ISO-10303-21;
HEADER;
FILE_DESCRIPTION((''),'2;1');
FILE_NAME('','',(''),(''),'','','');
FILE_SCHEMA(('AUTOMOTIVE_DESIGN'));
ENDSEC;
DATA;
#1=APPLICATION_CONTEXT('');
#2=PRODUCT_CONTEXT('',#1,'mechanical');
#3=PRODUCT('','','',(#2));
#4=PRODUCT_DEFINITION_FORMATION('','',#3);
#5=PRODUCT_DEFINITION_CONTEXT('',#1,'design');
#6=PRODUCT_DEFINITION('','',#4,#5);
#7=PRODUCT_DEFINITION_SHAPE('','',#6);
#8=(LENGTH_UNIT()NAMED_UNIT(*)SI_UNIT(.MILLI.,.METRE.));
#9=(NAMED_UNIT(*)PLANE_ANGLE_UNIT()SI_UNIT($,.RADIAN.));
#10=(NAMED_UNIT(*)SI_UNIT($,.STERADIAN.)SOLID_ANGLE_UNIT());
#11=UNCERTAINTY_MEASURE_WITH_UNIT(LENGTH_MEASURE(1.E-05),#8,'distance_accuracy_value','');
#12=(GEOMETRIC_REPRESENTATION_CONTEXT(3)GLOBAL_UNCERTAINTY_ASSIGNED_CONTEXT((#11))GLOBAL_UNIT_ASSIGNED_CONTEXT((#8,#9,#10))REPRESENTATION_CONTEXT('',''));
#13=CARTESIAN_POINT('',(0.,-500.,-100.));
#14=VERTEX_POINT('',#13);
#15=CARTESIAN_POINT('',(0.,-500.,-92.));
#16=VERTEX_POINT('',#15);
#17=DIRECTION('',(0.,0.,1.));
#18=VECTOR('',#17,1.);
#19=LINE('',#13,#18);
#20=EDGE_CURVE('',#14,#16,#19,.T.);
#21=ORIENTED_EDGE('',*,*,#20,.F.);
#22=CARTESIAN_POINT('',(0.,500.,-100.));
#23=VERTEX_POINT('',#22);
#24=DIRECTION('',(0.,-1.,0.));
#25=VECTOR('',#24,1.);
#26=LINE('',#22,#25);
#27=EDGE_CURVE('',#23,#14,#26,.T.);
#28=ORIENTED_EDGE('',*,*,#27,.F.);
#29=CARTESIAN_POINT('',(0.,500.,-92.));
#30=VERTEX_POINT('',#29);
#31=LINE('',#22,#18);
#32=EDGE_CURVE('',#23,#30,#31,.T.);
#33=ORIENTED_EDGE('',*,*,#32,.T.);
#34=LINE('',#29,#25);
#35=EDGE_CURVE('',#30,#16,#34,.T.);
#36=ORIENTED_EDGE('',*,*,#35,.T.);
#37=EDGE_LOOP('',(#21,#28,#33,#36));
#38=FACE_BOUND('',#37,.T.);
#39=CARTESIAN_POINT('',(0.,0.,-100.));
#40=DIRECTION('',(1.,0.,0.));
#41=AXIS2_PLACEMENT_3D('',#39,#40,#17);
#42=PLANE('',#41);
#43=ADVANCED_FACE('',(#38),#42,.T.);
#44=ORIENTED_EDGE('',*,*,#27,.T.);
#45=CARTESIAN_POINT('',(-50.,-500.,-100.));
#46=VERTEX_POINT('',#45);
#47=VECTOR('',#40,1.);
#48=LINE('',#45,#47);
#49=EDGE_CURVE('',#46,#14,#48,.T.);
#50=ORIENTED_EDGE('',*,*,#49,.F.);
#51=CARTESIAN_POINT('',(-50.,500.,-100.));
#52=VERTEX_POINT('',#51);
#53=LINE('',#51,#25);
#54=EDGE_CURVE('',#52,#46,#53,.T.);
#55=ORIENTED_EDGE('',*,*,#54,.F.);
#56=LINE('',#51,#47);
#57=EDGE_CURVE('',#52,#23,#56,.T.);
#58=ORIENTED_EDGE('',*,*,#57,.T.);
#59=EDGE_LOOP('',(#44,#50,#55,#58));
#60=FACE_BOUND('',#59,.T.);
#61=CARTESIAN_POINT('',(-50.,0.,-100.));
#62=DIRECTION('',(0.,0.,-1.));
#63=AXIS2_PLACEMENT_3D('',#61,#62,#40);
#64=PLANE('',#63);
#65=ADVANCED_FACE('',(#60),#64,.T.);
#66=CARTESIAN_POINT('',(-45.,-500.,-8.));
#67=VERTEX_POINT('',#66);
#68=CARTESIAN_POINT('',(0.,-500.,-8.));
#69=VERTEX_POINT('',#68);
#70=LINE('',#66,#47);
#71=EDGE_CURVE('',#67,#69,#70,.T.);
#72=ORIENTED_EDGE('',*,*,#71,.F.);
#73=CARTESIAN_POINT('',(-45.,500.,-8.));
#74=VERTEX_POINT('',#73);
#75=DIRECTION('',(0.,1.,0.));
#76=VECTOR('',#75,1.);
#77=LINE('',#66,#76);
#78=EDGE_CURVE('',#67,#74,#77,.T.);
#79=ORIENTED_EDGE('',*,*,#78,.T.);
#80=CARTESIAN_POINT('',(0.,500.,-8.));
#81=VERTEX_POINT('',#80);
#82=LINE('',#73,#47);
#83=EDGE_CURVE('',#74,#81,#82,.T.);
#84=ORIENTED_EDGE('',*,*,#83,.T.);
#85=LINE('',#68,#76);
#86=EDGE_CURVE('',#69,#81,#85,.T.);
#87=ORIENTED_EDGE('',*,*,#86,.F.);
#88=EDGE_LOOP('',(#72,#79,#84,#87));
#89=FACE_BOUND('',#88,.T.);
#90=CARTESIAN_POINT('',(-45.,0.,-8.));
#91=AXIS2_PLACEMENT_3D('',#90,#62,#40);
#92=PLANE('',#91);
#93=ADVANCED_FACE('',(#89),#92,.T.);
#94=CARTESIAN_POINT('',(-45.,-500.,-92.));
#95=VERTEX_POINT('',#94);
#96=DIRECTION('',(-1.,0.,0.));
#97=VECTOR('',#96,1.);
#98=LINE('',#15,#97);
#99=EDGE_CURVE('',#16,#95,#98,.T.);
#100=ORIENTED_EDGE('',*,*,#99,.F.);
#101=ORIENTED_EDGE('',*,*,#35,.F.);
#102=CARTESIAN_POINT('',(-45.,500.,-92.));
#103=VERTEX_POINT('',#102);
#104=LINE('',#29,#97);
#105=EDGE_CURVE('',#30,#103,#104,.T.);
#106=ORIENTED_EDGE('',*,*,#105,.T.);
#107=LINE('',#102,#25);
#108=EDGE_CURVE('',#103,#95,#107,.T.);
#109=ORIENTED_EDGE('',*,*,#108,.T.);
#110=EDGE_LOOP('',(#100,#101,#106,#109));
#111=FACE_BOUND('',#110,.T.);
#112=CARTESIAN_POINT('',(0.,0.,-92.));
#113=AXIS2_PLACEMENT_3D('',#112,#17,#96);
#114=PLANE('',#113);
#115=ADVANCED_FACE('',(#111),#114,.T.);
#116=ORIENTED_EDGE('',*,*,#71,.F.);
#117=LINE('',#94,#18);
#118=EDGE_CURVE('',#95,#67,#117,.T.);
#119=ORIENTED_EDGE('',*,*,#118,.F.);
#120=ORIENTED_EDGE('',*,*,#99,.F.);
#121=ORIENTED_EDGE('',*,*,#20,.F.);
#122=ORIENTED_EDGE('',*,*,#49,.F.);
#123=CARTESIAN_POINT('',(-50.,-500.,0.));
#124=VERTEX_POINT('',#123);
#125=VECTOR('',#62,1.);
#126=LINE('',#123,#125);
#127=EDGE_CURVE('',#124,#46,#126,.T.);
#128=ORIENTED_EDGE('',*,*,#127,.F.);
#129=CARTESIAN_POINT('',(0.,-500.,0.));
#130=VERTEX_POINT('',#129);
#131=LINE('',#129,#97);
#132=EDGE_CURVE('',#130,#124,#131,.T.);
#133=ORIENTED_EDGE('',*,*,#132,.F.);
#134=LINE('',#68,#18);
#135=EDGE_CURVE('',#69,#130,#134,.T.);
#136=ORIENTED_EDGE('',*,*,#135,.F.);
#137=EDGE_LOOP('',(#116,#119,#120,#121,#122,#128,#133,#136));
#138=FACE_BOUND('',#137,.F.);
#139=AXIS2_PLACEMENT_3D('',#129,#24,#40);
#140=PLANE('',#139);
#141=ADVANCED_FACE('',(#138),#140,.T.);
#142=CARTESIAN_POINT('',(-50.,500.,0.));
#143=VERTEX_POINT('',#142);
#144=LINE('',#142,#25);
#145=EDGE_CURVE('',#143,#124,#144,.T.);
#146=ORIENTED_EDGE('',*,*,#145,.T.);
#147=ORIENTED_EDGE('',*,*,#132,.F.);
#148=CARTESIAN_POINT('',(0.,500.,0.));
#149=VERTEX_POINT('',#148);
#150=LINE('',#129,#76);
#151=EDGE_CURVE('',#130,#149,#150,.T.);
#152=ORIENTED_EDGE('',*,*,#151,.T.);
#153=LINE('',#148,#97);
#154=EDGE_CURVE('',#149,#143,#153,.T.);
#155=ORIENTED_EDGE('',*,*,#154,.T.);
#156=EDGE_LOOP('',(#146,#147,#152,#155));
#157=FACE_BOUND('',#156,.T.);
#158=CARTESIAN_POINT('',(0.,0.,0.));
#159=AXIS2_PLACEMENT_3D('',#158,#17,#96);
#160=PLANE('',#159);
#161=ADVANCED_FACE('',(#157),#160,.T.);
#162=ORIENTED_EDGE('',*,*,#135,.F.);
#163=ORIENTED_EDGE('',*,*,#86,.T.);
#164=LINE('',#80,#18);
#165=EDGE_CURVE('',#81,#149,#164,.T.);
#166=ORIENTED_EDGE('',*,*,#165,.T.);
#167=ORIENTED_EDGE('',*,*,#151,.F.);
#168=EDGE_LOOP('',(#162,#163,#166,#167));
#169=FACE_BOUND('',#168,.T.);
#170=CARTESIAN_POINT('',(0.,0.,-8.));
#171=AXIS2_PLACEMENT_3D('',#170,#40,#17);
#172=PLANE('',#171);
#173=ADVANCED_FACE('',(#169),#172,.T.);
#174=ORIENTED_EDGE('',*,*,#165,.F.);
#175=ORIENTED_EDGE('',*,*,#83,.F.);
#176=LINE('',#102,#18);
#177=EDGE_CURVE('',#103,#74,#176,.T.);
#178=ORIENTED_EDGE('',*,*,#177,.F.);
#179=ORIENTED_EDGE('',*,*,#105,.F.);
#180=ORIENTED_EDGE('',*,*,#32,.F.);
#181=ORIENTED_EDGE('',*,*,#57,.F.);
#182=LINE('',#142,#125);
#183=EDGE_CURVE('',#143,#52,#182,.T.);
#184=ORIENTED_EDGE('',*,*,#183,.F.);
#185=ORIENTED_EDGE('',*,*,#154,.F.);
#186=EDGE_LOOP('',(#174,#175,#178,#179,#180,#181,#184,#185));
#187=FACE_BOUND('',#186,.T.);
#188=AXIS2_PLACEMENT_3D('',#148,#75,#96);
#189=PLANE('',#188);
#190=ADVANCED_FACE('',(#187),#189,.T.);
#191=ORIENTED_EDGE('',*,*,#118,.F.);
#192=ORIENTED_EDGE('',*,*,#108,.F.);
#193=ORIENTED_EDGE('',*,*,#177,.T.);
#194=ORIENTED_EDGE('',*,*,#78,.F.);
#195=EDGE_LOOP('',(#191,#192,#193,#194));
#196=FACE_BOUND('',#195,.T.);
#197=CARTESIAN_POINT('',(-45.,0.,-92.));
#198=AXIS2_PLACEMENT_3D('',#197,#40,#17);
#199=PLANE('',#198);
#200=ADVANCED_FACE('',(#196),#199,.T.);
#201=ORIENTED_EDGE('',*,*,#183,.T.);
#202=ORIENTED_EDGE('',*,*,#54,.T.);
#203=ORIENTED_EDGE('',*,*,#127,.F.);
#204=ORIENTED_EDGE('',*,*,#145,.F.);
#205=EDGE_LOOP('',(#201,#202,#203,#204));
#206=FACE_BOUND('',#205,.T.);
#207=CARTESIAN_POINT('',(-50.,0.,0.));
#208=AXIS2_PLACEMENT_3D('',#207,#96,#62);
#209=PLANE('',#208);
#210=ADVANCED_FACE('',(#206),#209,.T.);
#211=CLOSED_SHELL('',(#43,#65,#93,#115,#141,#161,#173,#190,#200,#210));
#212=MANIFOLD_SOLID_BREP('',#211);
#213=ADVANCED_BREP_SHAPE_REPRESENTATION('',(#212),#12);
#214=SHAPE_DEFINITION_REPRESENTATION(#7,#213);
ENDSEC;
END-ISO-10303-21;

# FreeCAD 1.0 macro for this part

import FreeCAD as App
import Part
import Sketcher


def add_polygon(sketch, points):
    """Adds a closed chain of lines whose ends are joined by coincident constraints."""
    first, n = sketch.GeometryCount, len(points)
    for a, b in zip(points, points[1:] + points[:1]):
        sketch.addGeometry(Part.LineSegment(App.Vector(*a, 0), App.Vector(*b, 0)), False)
    for i in range(n):
        sketch.addConstraint(Sketcher.Constraint("Coincident", first + i, 2, first + (i + 1) % n, 1))

doc = App.newDocument("Part")
body = doc.addObject("PartDesign::Body", "Body")

sketch1 = body.newObject("Sketcher::SketchObject", "Sketch")
sketch1.AttachmentSupport = (doc.getObject("XZ_Plane"), [""])
sketch1.MapMode = "FlatFace"
add_polygon(sketch1, [(-50, 0), (0, 0), (0, -8), (-45, -8), (-45, -92), (0, -92), (0, -100), (-50, -100)])
sketch1.addConstraint([
    Sketcher.Constraint("Horizontal", 0),
    Sketcher.Constraint("Vertical", 1),
    Sketcher.Constraint("Horizontal", 2),
    Sketcher.Constraint("Vertical", 3),
    Sketcher.Constraint("Horizontal", 4),
    Sketcher.Constraint("Vertical", 5),
    Sketcher.Constraint("Horizontal", 6),
    Sketcher.Constraint("Vertical", 7),
    Sketcher.Constraint("Coincident", 0, 2, -1, 1),
    Sketcher.Constraint("PointOnObject", 4, 2, -2),
    Sketcher.Constraint("Equal", 1, 5),
    Sketcher.Constraint("DistanceX", 0, 1, 0, 2, 50.0),
    Sketcher.Constraint("DistanceX", 2, 2, 2, 1, 45.0),
    Sketcher.Constraint("DistanceY", 1, 2, 1, 1, 8.0),
    Sketcher.Constraint("DistanceY", 3, 2, 3, 1, 84.0),
])
pad1 = body.newObject("PartDesign::Pad", "Pad")
pad1.Profile = sketch1
pad1.Length = 500
pad1.Reversed = True
doc.recompute()

mirrored = body.newObject("PartDesign::Mirrored", "Mirrored")
mirrored.Originals = [pad1]
mirrored.MirrorPlane = (doc.getObject("XZ_Plane"), [""])
body.Tip = mirrored

doc.recompute()
